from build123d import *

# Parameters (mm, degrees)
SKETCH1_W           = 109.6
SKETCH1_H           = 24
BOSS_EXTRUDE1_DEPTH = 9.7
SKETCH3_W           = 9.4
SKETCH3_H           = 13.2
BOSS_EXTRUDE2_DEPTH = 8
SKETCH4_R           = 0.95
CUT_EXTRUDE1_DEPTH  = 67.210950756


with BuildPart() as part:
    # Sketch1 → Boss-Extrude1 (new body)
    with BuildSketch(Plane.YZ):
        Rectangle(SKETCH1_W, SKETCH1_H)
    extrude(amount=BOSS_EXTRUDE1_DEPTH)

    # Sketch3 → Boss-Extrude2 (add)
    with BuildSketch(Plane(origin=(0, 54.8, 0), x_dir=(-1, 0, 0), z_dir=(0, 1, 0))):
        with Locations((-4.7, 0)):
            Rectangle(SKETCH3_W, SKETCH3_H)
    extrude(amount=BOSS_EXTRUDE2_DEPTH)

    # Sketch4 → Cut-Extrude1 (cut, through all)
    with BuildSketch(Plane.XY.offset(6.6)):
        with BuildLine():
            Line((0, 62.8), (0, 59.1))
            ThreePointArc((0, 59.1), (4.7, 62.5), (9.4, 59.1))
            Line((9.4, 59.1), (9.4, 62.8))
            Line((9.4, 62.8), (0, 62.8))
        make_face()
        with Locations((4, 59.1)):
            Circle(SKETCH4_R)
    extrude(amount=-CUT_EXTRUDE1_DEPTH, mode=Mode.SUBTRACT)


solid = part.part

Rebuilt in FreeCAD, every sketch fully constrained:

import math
import FreeCAD as App
import Part
import Sketcher
Q = App.Units.Quantity


def add_polygon(sketch, points):
    """Adds a closed chain of lines whose ends are joined by coincident constraints."""
    first, n = sketch.GeometryCount, len(points)
    for a, b in zip(points, points[1:] + points[:1]):
        sketch.addGeometry(Part.LineSegment(App.Vector(*a, 0), App.Vector(*b, 0)), False)
    for i in range(n):
        sketch.addConstraint(Sketcher.Constraint("Coincident", first + i, 2, first + (i + 1) % n, 1))

doc = App.newDocument("Part")
body = doc.addObject("PartDesign::Body", "Body")

# Sketch on YZ plane
sketch1 = body.newObject("Sketcher::SketchObject", "Sketch")
sketch1.AttachmentSupport = (doc.getObject("YZ_Plane"), [""])
sketch1.MapMode = "FlatFace"
add_polygon(sketch1, [(-55, 12), (-55, -12), (55, -12), (55, 12)])  # lines 0-3
sketch1.addConstraint([
    Sketcher.Constraint("Vertical", 0),
    Sketcher.Constraint("Horizontal", 1),
    Sketcher.Constraint("Vertical", 2),
    Sketcher.Constraint("Horizontal", 3),
    Sketcher.Constraint("Symmetric", 0, 2, 2, 2, -1, 1),
    Sketcher.Constraint("DistanceY", 0, 2, 0, 1, Q("24 mm")),
    Sketcher.Constraint("DistanceX", 1, 1, 1, 2, Q("109.6 mm")),
])
pad1 = body.newObject("PartDesign::Pad", "Pad")
pad1.Profile = sketch1
pad1.Length = 9.7

# Sketch on XZ plane
sketch2 = body.newObject("Sketcher::SketchObject", "Sketch001")
sketch2.AttachmentSupport = (doc.getObject("XZ_Plane"), [""])
sketch2.MapMode = "FlatFace"
sketch2.AttachmentOffset = App.Placement(App.Vector(0, 0, -54.8), App.Rotation())
add_polygon(sketch2, [(9, 7), (9, -7), (0, -7), (0, 7)])  # lines 0-3
sketch2.addConstraint([
    Sketcher.Constraint("Vertical", 0),
    Sketcher.Constraint("Horizontal", 1),
    Sketcher.Constraint("Vertical", 2),
    Sketcher.Constraint("Horizontal", 3),
    Sketcher.Constraint("Symmetric", 1, 2, 2, 2, -1, 1),
    Sketcher.Constraint("DistanceX", 1, 2, 1, 1, Q("9.4 mm")),
    Sketcher.Constraint("DistanceY", 0, 2, 0, 1, Q("13.2 mm")),
])
pad2 = body.newObject("PartDesign::Pad", "Pad001")
pad2.Profile = sketch2
pad2.Length = 8
pad2.Reversed = True

# Sketch on XY plane
sketch3 = body.newObject("Sketcher::SketchObject", "Sketch002")
sketch3.AttachmentSupport = (doc.getObject("XY_Plane"), [""])
sketch3.MapMode = "FlatFace"
sketch3.AttachmentOffset = App.Placement(App.Vector(0, 0, 6.6), App.Rotation())
sketch3.addGeometry([
    Part.LineSegment(App.Vector(0, 62.8, 0), App.Vector(0, 59.1, 0)),  # 0
    Part.ArcOfCircle(Part.Circle(App.Vector(4.7, 57.6, 0), App.Vector(0, 0, 1), 4.9), math.radians(18), math.radians(162)),  # 1
    Part.LineSegment(App.Vector(9.4, 59.1, 0), App.Vector(9.4, 62.8, 0)),  # 2
    Part.LineSegment(App.Vector(9.4, 62.8, 0), App.Vector(0, 62.8, 0)),  # 3
    Part.Circle(App.Vector(4, 59.1, 0), App.Vector(0, 0, 1), 0.9),  # 4
], False)
sketch3.addConstraint([
    Sketcher.Constraint("Coincident", 0, 2, 1, 2),
    Sketcher.Constraint("Coincident", 1, 1, 2, 1),
    Sketcher.Constraint("Coincident", 2, 2, 3, 1),
    Sketcher.Constraint("Coincident", 3, 2, 0, 1),
    Sketcher.Constraint("Vertical", 0),
    Sketcher.Constraint("Vertical", 2),
    Sketcher.Constraint("Horizontal", 3),
    Sketcher.Constraint("PointOnObject", 0, 2, -2),
    Sketcher.Constraint("Horizontal", 4, 3, 0, 2),
    Sketcher.Constraint("Horizontal", 0, 2, 1, 1),
    Sketcher.Constraint("Diameter", 4, Q("1.9 mm")),
    Sketcher.Constraint("DistanceX", 3, 2, 3, 1, Q("9.4 mm")),
    Sketcher.Constraint("DistanceY", 0, 2, 0, 1, Q("3.7 mm")),
    Sketcher.Constraint("DistanceX", -1, 1, 4, 3, Q("4 mm")),
    Sketcher.Constraint("DistanceY", -1, 1, 4, 3, Q("59.1 mm")),
    Sketcher.Constraint("Radius", 1, Q("4.948529 mm")),
])
pocket1 = body.newObject("PartDesign::Pocket", "Pocket")
pocket1.Profile = sketch3
pocket1.Type = "ThroughAll"

doc.recompute()
